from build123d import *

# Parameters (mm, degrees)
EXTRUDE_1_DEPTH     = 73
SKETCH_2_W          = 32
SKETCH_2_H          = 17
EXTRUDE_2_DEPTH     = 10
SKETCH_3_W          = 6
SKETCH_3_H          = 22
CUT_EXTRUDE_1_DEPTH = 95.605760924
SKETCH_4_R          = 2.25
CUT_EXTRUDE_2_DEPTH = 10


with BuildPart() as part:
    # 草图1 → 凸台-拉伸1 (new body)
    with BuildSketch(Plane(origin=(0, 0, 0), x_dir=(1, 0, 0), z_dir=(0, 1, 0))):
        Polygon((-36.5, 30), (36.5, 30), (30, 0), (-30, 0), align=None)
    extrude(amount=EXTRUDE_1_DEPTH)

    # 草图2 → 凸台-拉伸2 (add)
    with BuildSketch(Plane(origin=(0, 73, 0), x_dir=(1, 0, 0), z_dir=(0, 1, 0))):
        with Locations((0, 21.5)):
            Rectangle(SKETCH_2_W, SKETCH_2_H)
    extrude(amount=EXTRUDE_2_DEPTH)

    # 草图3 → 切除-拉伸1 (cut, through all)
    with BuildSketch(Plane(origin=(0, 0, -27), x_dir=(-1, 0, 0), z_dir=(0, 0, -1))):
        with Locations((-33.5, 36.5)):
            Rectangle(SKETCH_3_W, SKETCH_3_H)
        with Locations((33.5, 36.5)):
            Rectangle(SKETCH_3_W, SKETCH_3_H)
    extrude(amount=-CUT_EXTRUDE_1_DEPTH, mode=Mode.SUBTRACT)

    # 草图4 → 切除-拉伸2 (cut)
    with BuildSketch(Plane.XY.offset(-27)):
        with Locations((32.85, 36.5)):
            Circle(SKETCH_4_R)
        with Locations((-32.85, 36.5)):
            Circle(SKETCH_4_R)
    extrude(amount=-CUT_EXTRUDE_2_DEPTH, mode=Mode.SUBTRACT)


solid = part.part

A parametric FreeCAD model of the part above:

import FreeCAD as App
import Part
import Sketcher
from FreeCAD import Vector
Q = App.Units.Quantity

doc = App.newDocument("Part")
body = doc.addObject("PartDesign::Body", "Body")

# Sketch on XZ plane
sketch1 = doc.addObject("Sketcher::SketchObject", "Sketch")
body.addObject(sketch1)
sketch1.AttachmentSupport = (doc.XZ_Plane, [""])
sketch1.MapMode = "FlatFace"
sketch1.addGeometry([
    Part.LineSegment(Vector(36, -30, 0), Vector(-36, -30, 0)),
    Part.LineSegment(Vector(-36, -30, 0), Vector(-30, 0, 0)),
    Part.LineSegment(Vector(-30, 0, 0), Vector(30, 0, 0)),
    Part.LineSegment(Vector(30, 0, 0), Vector(36, -30, 0)),
], False)
sketch1.addConstraint([
    Sketcher.Constraint("Coincident", 0, 2, 1, 1),
    Sketcher.Constraint("Coincident", 1, 2, 2, 1),
    Sketcher.Constraint("Coincident", 2, 2, 3, 1),
    Sketcher.Constraint("Coincident", 3, 2, 0, 1),
    Sketcher.Constraint("Horizontal", 0),
    Sketcher.Constraint("Horizontal", 2),
    Sketcher.Constraint("Symmetric", 1, 2, 2, 2, -1, 1),
    Sketcher.Constraint("Equal", 1, 3),
    Sketcher.Constraint("DistanceX", 0, 2, 0, 1, Q("73 mm")),
    Sketcher.Constraint("DistanceX", 2, 1, 2, 2, Q("60 mm")),
    Sketcher.Constraint("DistanceY", 0, 2, -1, 1, Q("30 mm")),
])
pad1 = doc.addObject("PartDesign::Pad", "Pad")
body.addObject(pad1)
pad1.Profile = sketch1
pad1.Length = 73
pad1.Reversed = True

# Sketch on XZ plane
sketch2 = doc.addObject("Sketcher::SketchObject", "Sketch001")
body.addObject(sketch2)
sketch2.AttachmentSupport = (doc.XZ_Plane, [""])
sketch2.MapMode = "FlatFace"
sketch2.AttachmentOffset = App.Placement(Vector(0, 0, -73), App.Rotation())
sketch2.addGeometry([
    Part.LineSegment(Vector(-16, -30, 0), Vector(-16, -13, 0)),
    Part.LineSegment(Vector(-16, -13, 0), Vector(16, -13, 0)),
    Part.LineSegment(Vector(16, -13, 0), Vector(16, -30, 0)),
    Part.LineSegment(Vector(16, -30, 0), Vector(-16, -30, 0)),
], False)
sketch2.addConstraint([
    Sketcher.Constraint("Coincident", 0, 2, 1, 1),
    Sketcher.Constraint("Coincident", 1, 2, 2, 1),
    Sketcher.Constraint("Coincident", 2, 2, 3, 1),
    Sketcher.Constraint("Coincident", 3, 2, 0, 1),
    Sketcher.Constraint("Vertical", 0),
    Sketcher.Constraint("Horizontal", 1),
    Sketcher.Constraint("Vertical", 2),
    Sketcher.Constraint("Horizontal", 3),
    Sketcher.Constraint("DistanceX", 1, 1, 1, 2, Q("32 mm")),
    Sketcher.Constraint("DistanceY", 0, 1, 0, 2, Q("17 mm")),
    Sketcher.Constraint("DistanceX", 0, 2, -1, 1, Q("16 mm")),
    Sketcher.Constraint("DistanceY", 0, 2, -1, 1, Q("13 mm")),
])
pad2 = doc.addObject("PartDesign::Pad", "Pad001")
body.addObject(pad2)
pad2.Profile = sketch2
pad2.Length = 10
pad2.Reversed = True

# Sketch on XY plane
sketch3 = doc.addObject("Sketcher::SketchObject", "Sketch002")
body.addObject(sketch3)
sketch3.AttachmentSupport = (doc.XY_Plane, [""])
sketch3.MapMode = "FlatFace"
sketch3.AttachmentOffset = App.Placement(Vector(0, 0, -27), App.Rotation())
sketch3.addGeometry([
    Part.LineSegment(Vector(36, 48, 0), Vector(36, 26, 0)),  # 0
    Part.LineSegment(Vector(36, 26, 0), Vector(30, 26, 0)),  # 1
    Part.LineSegment(Vector(30, 26, 0), Vector(30, 48, 0)),  # 2
    Part.LineSegment(Vector(30, 48, 0), Vector(36, 48, 0)),  # 3
    Part.LineSegment(Vector(-30, 48, 0), Vector(-30, 26, 0)),  # 4
    Part.LineSegment(Vector(-30, 26, 0), Vector(-36, 26, 0)),  # 5
    Part.LineSegment(Vector(-36, 26, 0), Vector(-36, 48, 0)),  # 6
    Part.LineSegment(Vector(-36, 48, 0), Vector(-30, 48, 0)),  # 7
], False)
sketch3.addConstraint([
    Sketcher.Constraint("Coincident", 0, 2, 1, 1),
    Sketcher.Constraint("Coincident", 1, 2, 2, 1),
    Sketcher.Constraint("Coincident", 2, 2, 3, 1),
    Sketcher.Constraint("Coincident", 3, 2, 0, 1),
    Sketcher.Constraint("Coincident", 4, 2, 5, 1),
    Sketcher.Constraint("Coincident", 5, 2, 6, 1),
    Sketcher.Constraint("Coincident", 6, 2, 7, 1),
    Sketcher.Constraint("Coincident", 7, 2, 4, 1),
    Sketcher.Constraint("Vertical", 0),
    Sketcher.Constraint("Horizontal", 1),
    Sketcher.Constraint("Vertical", 2),
    Sketcher.Constraint("Horizontal", 3),
    Sketcher.Constraint("Vertical", 4),
    Sketcher.Constraint("Horizontal", 5),
    Sketcher.Constraint("Vertical", 6),
    Sketcher.Constraint("Horizontal", 7),
    Sketcher.Constraint("Symmetric", 1, 2, 4, 2, -2),
    Sketcher.Constraint("Symmetric", 3, 2, 6, 2, -2),
    Sketcher.Constraint("DistanceX", 1, 2, 1, 1, Q("6 mm")),
    Sketcher.Constraint("DistanceY", 0, 2, 0, 1, Q("22 mm")),
    Sketcher.Constraint("DistanceX", 4, 2, 1, 2, Q("61 mm")),
    Sketcher.Constraint("DistanceY", -1, 1, 0, 2, Q("25.5 mm")),
])
pocket1 = doc.addObject("PartDesign::Pocket", "Pocket")
body.addObject(pocket1)
pocket1.Profile = sketch3
pocket1.Type = "ThroughAll"
pocket1.Reversed = True

# Sketch on XY plane
sketch4 = doc.addObject("Sketcher::SketchObject", "Sketch003")
body.addObject(sketch4)
sketch4.AttachmentSupport = (doc.XY_Plane, [""])
sketch4.MapMode = "FlatFace"
sketch4.AttachmentOffset = App.Placement(Vector(0, 0, -27), App.Rotation())
sketch4.addGeometry([
    Part.Circle(Vector(32.9, 36.5, 0), Vector(0, 0, 1), 2.2),
    Part.Circle(Vector(-32.9, 36.5, 0), Vector(0, 0, 1), 2.2),
], False)
sketch4.addConstraint([
    Sketcher.Constraint("Equal", 0, 1),
    Sketcher.Constraint("Symmetric", 0, 3, 1, 3, -2),
    Sketcher.Constraint("Diameter", 0, Q("4.5 mm")),
    Sketcher.Constraint("DistanceY", -1, 1, 0, 3, Q("36.5 mm")),
    Sketcher.Constraint("DistanceX", 1, 3, 0, 3, Q("65.7 mm")),
])
pocket2 = doc.addObject("PartDesign::Pocket", "Pocket001")
body.addObject(pocket2)
pocket2.Profile = sketch4
pocket2.Length = 10

doc.recompute()
